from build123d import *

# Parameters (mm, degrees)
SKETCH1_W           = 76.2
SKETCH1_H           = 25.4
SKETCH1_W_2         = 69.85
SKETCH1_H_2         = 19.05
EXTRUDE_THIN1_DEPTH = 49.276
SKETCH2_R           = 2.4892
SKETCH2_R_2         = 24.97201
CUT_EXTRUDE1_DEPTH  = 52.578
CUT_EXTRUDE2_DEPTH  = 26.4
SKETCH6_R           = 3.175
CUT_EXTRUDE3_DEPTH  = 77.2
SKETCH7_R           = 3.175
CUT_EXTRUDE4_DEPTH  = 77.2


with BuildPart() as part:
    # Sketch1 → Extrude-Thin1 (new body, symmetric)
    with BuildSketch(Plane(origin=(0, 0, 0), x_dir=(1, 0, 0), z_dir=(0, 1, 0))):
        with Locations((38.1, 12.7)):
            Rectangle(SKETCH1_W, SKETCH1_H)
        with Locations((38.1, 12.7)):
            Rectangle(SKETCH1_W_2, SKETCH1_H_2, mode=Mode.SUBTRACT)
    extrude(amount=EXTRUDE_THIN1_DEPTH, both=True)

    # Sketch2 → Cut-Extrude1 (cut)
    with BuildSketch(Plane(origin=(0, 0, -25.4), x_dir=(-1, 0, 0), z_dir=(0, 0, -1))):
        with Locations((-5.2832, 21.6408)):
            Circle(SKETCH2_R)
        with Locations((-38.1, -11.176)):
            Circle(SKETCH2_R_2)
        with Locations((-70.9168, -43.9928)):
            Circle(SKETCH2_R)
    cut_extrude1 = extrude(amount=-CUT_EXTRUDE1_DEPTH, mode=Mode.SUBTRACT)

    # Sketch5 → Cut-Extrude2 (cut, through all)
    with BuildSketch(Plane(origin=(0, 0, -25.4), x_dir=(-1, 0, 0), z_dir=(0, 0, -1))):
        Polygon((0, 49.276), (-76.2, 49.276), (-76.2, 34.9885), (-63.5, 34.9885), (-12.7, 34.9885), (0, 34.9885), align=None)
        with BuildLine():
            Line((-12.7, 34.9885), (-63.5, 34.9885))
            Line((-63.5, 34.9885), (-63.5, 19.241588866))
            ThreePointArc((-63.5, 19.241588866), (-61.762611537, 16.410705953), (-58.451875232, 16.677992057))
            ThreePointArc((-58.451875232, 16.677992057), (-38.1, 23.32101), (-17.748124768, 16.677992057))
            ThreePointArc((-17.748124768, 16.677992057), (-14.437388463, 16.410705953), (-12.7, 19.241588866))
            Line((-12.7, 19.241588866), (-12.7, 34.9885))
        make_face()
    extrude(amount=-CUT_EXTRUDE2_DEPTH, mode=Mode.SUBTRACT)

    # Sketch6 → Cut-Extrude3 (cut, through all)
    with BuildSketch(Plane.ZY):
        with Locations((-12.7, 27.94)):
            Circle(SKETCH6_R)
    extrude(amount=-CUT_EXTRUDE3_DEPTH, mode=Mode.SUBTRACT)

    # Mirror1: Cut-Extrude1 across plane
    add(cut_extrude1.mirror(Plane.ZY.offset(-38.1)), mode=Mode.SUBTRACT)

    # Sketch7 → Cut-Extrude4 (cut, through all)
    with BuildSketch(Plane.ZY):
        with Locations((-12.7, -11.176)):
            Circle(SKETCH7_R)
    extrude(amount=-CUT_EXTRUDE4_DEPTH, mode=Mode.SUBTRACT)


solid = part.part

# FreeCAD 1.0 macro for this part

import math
import FreeCAD as App
import Part
import Sketcher

V = App.Vector
Q = App.Units.Quantity

doc = App.newDocument("Part")
body = doc.addObject("PartDesign::Body", "Body")

sketch1 = body.newObject("Sketcher::SketchObject", "Sketch")
sketch1.AttachmentSupport = (doc.getObject("XZ_Plane"), [""])
sketch1.MapMode = "FlatFace"
sketch1.addGeometry(Part.LineSegment(V(0, -25.4, 0), V(0, 0, 0)), False)
sketch1.addGeometry(Part.LineSegment(V(0, 0, 0), V(76.2, 0, 0)), False)
sketch1.addGeometry(Part.LineSegment(V(76.2, 0, 0), V(76.2, -25.4, 0)), False)
sketch1.addGeometry(Part.LineSegment(V(76.2, -25.4, 0), V(0, -25.4, 0)), False)
sketch1.addGeometry(Part.LineSegment(V(73.025, -3.175, 0), V(3.175, -3.175, 0)), False)
sketch1.addGeometry(Part.LineSegment(V(3.175, -3.175, 0), V(3.175, -22.225, 0)), False)
sketch1.addGeometry(Part.LineSegment(V(3.175, -22.225, 0), V(73.025, -22.225, 0)), False)
sketch1.addGeometry(Part.LineSegment(V(73.025, -22.225, 0), V(73.025, -3.175, 0)), False)
sketch1.addConstraint(Sketcher.Constraint("Coincident", 0, 2, 1, 1))
sketch1.addConstraint(Sketcher.Constraint("Coincident", 1, 2, 2, 1))
sketch1.addConstraint(Sketcher.Constraint("Coincident", 2, 2, 3, 1))
sketch1.addConstraint(Sketcher.Constraint("Coincident", 3, 2, 0, 1))
sketch1.addConstraint(Sketcher.Constraint("Coincident", 4, 2, 5, 1))
sketch1.addConstraint(Sketcher.Constraint("Coincident", 5, 2, 6, 1))
sketch1.addConstraint(Sketcher.Constraint("Coincident", 6, 2, 7, 1))
sketch1.addConstraint(Sketcher.Constraint("Coincident", 7, 2, 4, 1))
sketch1.addConstraint(Sketcher.Constraint("Vertical", 0))
sketch1.addConstraint(Sketcher.Constraint("Horizontal", 1))
sketch1.addConstraint(Sketcher.Constraint("Vertical", 2))
sketch1.addConstraint(Sketcher.Constraint("Horizontal", 3))
sketch1.addConstraint(Sketcher.Constraint("Horizontal", 4))
sketch1.addConstraint(Sketcher.Constraint("Vertical", 5))
sketch1.addConstraint(Sketcher.Constraint("Horizontal", 6))
sketch1.addConstraint(Sketcher.Constraint("Vertical", 7))
sketch1.addConstraint(Sketcher.Constraint("Coincident", 0, 2, -1, 1))
sketch1.addConstraint(Sketcher.Constraint("DistanceX", 1, 1, 1, 2, Q("3 in")))
sketch1.addConstraint(Sketcher.Constraint("DistanceY", 0, 1, 0, 2, Q("1 in")))
sketch1.addConstraint(Sketcher.Constraint("DistanceX", 4, 2, 4, 1, Q("2.75 in")))
sketch1.addConstraint(Sketcher.Constraint("DistanceY", 5, 2, 5, 1, Q("0.75 in")))
sketch1.addConstraint(Sketcher.Constraint("DistanceX", -1, 1, 4, 2, Q("0.125 in")))
sketch1.addConstraint(Sketcher.Constraint("DistanceY", 4, 2, -1, 1, Q("0.125 in")))
pad1 = body.newObject("PartDesign::Pad", "Pad")
pad1.Profile = sketch1
pad1.Length = Q("3.88 in")
pad1.Midplane = True

sketch2 = body.newObject("Sketcher::SketchObject", "Sketch001")
sketch2.AttachmentSupport = (doc.getObject("XY_Plane"), [""])
sketch2.MapMode = "FlatFace"
sketch2.AttachmentOffset = App.Placement(V(0, 0, -1 * 25.4), App.Rotation())
sketch2.addGeometry(Part.Circle(V(5.2832, 21.6408, 0), V(0, 0, 1), 2.4892), False)
sketch2.addGeometry(Part.Circle(V(38.1, -11.176, 0), V(0, 0, 1), 24.97201), False)
sketch2.addGeometry(Part.Circle(V(70.9168, -43.9928, 0), V(0, 0, 1), 2.4892), False)
sketch2.addConstraint(Sketcher.Constraint("Equal", 0, 2))
sketch2.addConstraint(Sketcher.Constraint("Diameter", 0, Q("0.196 in")))
sketch2.addConstraint(Sketcher.Constraint("Diameter", 1, Q("1.9663 in")))
sketch2.addConstraint(Sketcher.Constraint("DistanceX", -1, 1, 1, 3, Q("1.5 in")))
sketch2.addConstraint(Sketcher.Constraint("DistanceY", 1, 3, -1, 1, Q("0.44 in")))
sketch2.addConstraint(Sketcher.Constraint("DistanceX", -1, 1, 0, 3, Q("0.208 in")))
sketch2.addConstraint(Sketcher.Constraint("DistanceY", -1, 1, 0, 3, Q("0.852 in")))
sketch2.addConstraint(Sketcher.Constraint("DistanceX", -1, 1, 2, 3, Q("2.792 in")))
sketch2.addConstraint(Sketcher.Constraint("DistanceY", 2, 3, -1, 1, Q("1.732 in")))
pocket1 = body.newObject("PartDesign::Pocket", "Pocket")
pocket1.Profile = sketch2
pocket1.Length = Q("2.07 in")
pocket1.Reversed = True

sketch3 = body.newObject("Sketcher::SketchObject", "Sketch002")
sketch3.AttachmentSupport = (doc.getObject("XY_Plane"), [""])
sketch3.MapMode = "FlatFace"
sketch3.AttachmentOffset = App.Placement(V(0, 0, -1 * 25.4), App.Rotation())
sketch3.addGeometry(Part.LineSegment(V(0, 49.276, 0), V(76.2, 49.276, 0)), False)
sketch3.addGeometry(Part.LineSegment(V(76.2, 49.276, 0), V(76.2, 34.9885, 0)), False)
sketch3.addGeometry(Part.LineSegment(V(76.2, 34.9885, 0), V(63.5, 34.9885, 0)), False)
sketch3.addGeometry(Part.LineSegment(V(63.5, 34.9885, 0), V(63.5, 19.241589, 0)), False)
sketch3.addGeometry(Part.ArcOfCircle(Part.Circle(V(60.325, 19.241589, 0), V(0, 0, 1), 3.175), math.radians(-126.154209), math.radians(0)), False)
sketch3.addGeometry(Part.ArcOfCircle(Part.Circle(V(38.1, -11.176, 0), V(0, 0, 1), 34.49701), math.radians(53.845791), math.radians(126.154209)), False)
sketch3.addGeometry(Part.ArcOfCircle(Part.Circle(V(15.875, 19.241589, 0), V(0, 0, 1), 3.175), math.radians(180), math.radians(306.154209)), False)
sketch3.addGeometry(Part.LineSegment(V(12.7, 19.241589, 0), V(12.7, 34.9885, 0)), False)
sketch3.addGeometry(Part.LineSegment(V(12.7, 34.9885, 0), V(0, 34.9885, 0)), False)
sketch3.addGeometry(Part.LineSegment(V(0, 34.9885, 0), V(0, 49.276, 0)), False)
sketch3.addConstraint(Sketcher.Constraint("Coincident", 0, 2, 1, 1))
sketch3.addConstraint(Sketcher.Constraint("Coincident", 1, 2, 2, 1))
sketch3.addConstraint(Sketcher.Constraint("Coincident", 2, 2, 3, 1))
sketch3.addConstraint(Sketcher.Constraint("Tangent", 3, 2, 4, 2))
sketch3.addConstraint(Sketcher.Constraint("Tangent", 4, 1, 5, 1))
sketch3.addConstraint(Sketcher.Constraint("Tangent", 5, 2, 6, 2))
sketch3.addConstraint(Sketcher.Constraint("Tangent", 6, 1, 7, 1))
sketch3.addConstraint(Sketcher.Constraint("Coincident", 7, 2, 8, 1))
sketch3.addConstraint(Sketcher.Constraint("Coincident", 8, 2, 9, 1))
sketch3.addConstraint(Sketcher.Constraint("Coincident", 9, 2, 0, 1))
sketch3.addConstraint(Sketcher.Constraint("Horizontal", 0))
sketch3.addConstraint(Sketcher.Constraint("Vertical", 1))
sketch3.addConstraint(Sketcher.Constraint("Horizontal", 2))
sketch3.addConstraint(Sketcher.Constraint("Vertical", 3))
sketch3.addConstraint(Sketcher.Constraint("Vertical", 7))
sketch3.addConstraint(Sketcher.Constraint("Horizontal", 8))
sketch3.addConstraint(Sketcher.Constraint("Vertical", 9))
sketch3.addConstraint(Sketcher.Constraint("Equal", 4, 6))
sketch3.addConstraint(Sketcher.Constraint("PointOnObject", 8, 2, -2))
sketch3.addConstraint(Sketcher.Constraint("Horizontal", 4, 3, 6, 3))
sketch3.addConstraint(Sketcher.Constraint("Horizontal", 2, 2, 7, 2))
sketch3.addConstraint(Sketcher.Constraint("Equal", 2, 8))
sketch3.addConstraint(Sketcher.Constraint("DistanceX", 0, 1, 0, 2, Q("3 in")))
sketch3.addConstraint(Sketcher.Constraint("DistanceX", 2, 2, 2, 1, Q("0.5 in")))
sketch3.addConstraint(Sketcher.Constraint("Radius", 4, Q("0.125 in")))
sketch3.addConstraint(Sketcher.Constraint("DistanceY", 1, 2, 1, 1, Q("0.5625 in")))
sketch3.addConstraint(Sketcher.Constraint("DistanceY", 5, 3, -1, 1, Q("0.44 in")))
sketch3.addConstraint(Sketcher.Constraint("DistanceY", -1, 1, 0, 2, Q("1.94 in")))
sketch3.addConstraint(Sketcher.Constraint("Radius", 5, Q("34.49701 mm")))
pocket2 = body.newObject("PartDesign::Pocket", "Pocket001")
pocket2.Profile = sketch3
pocket2.Type = "ThroughAll"
pocket2.Reversed = True

sketch4 = body.newObject("Sketcher::SketchObject", "Sketch003")
sketch4.AttachmentSupport = (doc.getObject("YZ_Plane"), [""])
sketch4.MapMode = "FlatFace"
sketch4.addGeometry(Part.Circle(V(27.94, -12.7, 0), V(0, 0, 1), 3.175), False)
sketch4.addConstraint(Sketcher.Constraint("Diameter", 0, Q("0.25 in")))
sketch4.addConstraint(Sketcher.Constraint("DistanceX", -1, 1, 0, 3, Q("1.1 in")))
sketch4.addConstraint(Sketcher.Constraint("DistanceY", 0, 3, -1, 1, Q("0.5 in")))
pocket3 = body.newObject("PartDesign::Pocket", "Pocket002")
pocket3.Profile = sketch4
pocket3.Type = "ThroughAll"
pocket3.Reversed = True
doc.recompute()

datumplane = body.newObject("PartDesign::Plane", "DatumPlane")
datumplane.AttachmentSupport = (doc.getObject("YZ_Plane"), [""])
datumplane.MapMode = "FlatFace"
datumplane.AttachmentOffset = App.Placement(V(0, 0, 1.5 * 25.4), App.Rotation())
mirrored = body.newObject("PartDesign::Mirrored", "Mirrored")
mirrored.Originals = [pocket1]
mirrored.MirrorPlane = (datumplane, [""])
body.Tip = mirrored

sketch5 = body.newObject("Sketcher::SketchObject", "Sketch004")
sketch5.AttachmentSupport = (doc.getObject("YZ_Plane"), [""])
sketch5.MapMode = "FlatFace"
sketch5.addGeometry(Part.Circle(V(-11.176, -12.7, 0), V(0, 0, 1), 3.175), False)
sketch5.addConstraint(Sketcher.Constraint("Diameter", 0, Q("0.25 in")))
sketch5.addConstraint(Sketcher.Constraint("DistanceY", 0, 3, -1, 1, Q("0.5 in")))
sketch5.addConstraint(Sketcher.Constraint("DistanceX", 0, 3, -1, 1, Q("0.44 in")))
pocket4 = body.newObject("PartDesign::Pocket", "Pocket003")
pocket4.Profile = sketch5
pocket4.Type = "ThroughAll"
pocket4.Reversed = True

doc.recompute()
